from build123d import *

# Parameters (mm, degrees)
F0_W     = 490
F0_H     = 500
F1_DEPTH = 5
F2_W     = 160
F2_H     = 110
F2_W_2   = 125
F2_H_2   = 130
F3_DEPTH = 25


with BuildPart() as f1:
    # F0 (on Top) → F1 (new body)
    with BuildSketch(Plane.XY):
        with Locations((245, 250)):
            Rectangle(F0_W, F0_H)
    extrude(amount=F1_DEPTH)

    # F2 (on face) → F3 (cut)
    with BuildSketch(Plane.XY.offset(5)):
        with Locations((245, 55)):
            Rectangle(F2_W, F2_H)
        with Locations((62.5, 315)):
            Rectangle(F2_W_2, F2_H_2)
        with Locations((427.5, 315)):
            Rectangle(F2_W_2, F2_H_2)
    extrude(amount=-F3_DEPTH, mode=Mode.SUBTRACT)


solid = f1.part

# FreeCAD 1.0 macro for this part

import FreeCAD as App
import Part
import Sketcher
from FreeCAD import Vector
Q = App.Units.Quantity

doc = App.newDocument("Part")
body = doc.addObject("PartDesign::Body", "Body")

# Sketch on XY plane
sketch1 = doc.addObject("Sketcher::SketchObject", "Sketch")
body.addObject(sketch1)
sketch1.AttachmentSupport = (doc.XY_Plane, [""])
sketch1.MapMode = "FlatFace"
sketch1.addGeometry(Part.LineSegment(Vector(0, 500, 0), Vector(0, 0, 0)), False)
sketch1.addGeometry(Part.LineSegment(Vector(0, 0, 0), Vector(490, 0, 0)), False)
sketch1.addGeometry(Part.LineSegment(Vector(490, 0, 0), Vector(490, 500, 0)), False)
sketch1.addGeometry(Part.LineSegment(Vector(490, 500, 0), Vector(0, 500, 0)), False)
sketch1.addConstraint(Sketcher.Constraint("Coincident", 0, 2, 1, 1))
sketch1.addConstraint(Sketcher.Constraint("Coincident", 1, 2, 2, 1))
sketch1.addConstraint(Sketcher.Constraint("Coincident", 2, 2, 3, 1))
sketch1.addConstraint(Sketcher.Constraint("Coincident", 3, 2, 0, 1))
sketch1.addConstraint(Sketcher.Constraint("Vertical", 0))
sketch1.addConstraint(Sketcher.Constraint("Horizontal", 1))
sketch1.addConstraint(Sketcher.Constraint("Vertical", 2))
sketch1.addConstraint(Sketcher.Constraint("Horizontal", 3))
sketch1.addConstraint(Sketcher.Constraint("Coincident", 0, 2, -1, 1))
sketch1.addConstraint(Sketcher.Constraint("DistanceX", 1, 1, 1, 2, Q("490 mm")))
sketch1.addConstraint(Sketcher.Constraint("DistanceY", 0, 2, 0, 1, Q("500 mm")))
pad1 = doc.addObject("PartDesign::Pad", "Pad")
body.addObject(pad1)
pad1.Profile = sketch1
pad1.Length = 5

# Sketch on XY plane
sketch2 = doc.addObject("Sketcher::SketchObject", "Sketch001")
body.addObject(sketch2)
sketch2.AttachmentSupport = (doc.XY_Plane, [""])
sketch2.MapMode = "FlatFace"
sketch2.AttachmentOffset = App.Placement(Vector(0, 0, 5), App.Rotation())
sketch2.addGeometry(Part.LineSegment(Vector(165, 110, 0), Vector(165, 0, 0)), False)
sketch2.addGeometry(Part.LineSegment(Vector(165, 0, 0), Vector(325, 0, 0)), False)
sketch2.addGeometry(Part.LineSegment(Vector(325, 0, 0), Vector(325, 110, 0)), False)
sketch2.addGeometry(Part.LineSegment(Vector(325, 110, 0), Vector(165, 110, 0)), False)
sketch2.addGeometry(Part.LineSegment(Vector(0, 380, 0), Vector(0, 250, 0)), False)
sketch2.addGeometry(Part.LineSegment(Vector(0, 250, 0), Vector(125, 250, 0)), False)
sketch2.addGeometry(Part.LineSegment(Vector(125, 250, 0), Vector(125, 380, 0)), False)
sketch2.addGeometry(Part.LineSegment(Vector(125, 380, 0), Vector(0, 380, 0)), False)
sketch2.addGeometry(Part.LineSegment(Vector(365, 380, 0), Vector(365, 250, 0)), False)
sketch2.addGeometry(Part.LineSegment(Vector(365, 250, 0), Vector(490, 250, 0)), False)
sketch2.addGeometry(Part.LineSegment(Vector(490, 250, 0), Vector(490, 380, 0)), False)
sketch2.addGeometry(Part.LineSegment(Vector(490, 380, 0), Vector(365, 380, 0)), False)
sketch2.addConstraint(Sketcher.Constraint("Coincident", 0, 2, 1, 1))
sketch2.addConstraint(Sketcher.Constraint("Coincident", 1, 2, 2, 1))
sketch2.addConstraint(Sketcher.Constraint("Coincident", 2, 2, 3, 1))
sketch2.addConstraint(Sketcher.Constraint("Coincident", 3, 2, 0, 1))
sketch2.addConstraint(Sketcher.Constraint("Coincident", 4, 2, 5, 1))
sketch2.addConstraint(Sketcher.Constraint("Coincident", 5, 2, 6, 1))
sketch2.addConstraint(Sketcher.Constraint("Coincident", 6, 2, 7, 1))
sketch2.addConstraint(Sketcher.Constraint("Coincident", 7, 2, 4, 1))
sketch2.addConstraint(Sketcher.Constraint("Coincident", 8, 2, 9, 1))
sketch2.addConstraint(Sketcher.Constraint("Coincident", 9, 2, 10, 1))
sketch2.addConstraint(Sketcher.Constraint("Coincident", 10, 2, 11, 1))
sketch2.addConstraint(Sketcher.Constraint("Coincident", 11, 2, 8, 1))
sketch2.addConstraint(Sketcher.Constraint("Vertical", 0))
sketch2.addConstraint(Sketcher.Constraint("Horizontal", 1))
sketch2.addConstraint(Sketcher.Constraint("Vertical", 2))
sketch2.addConstraint(Sketcher.Constraint("Horizontal", 3))
sketch2.addConstraint(Sketcher.Constraint("Vertical", 4))
sketch2.addConstraint(Sketcher.Constraint("Horizontal", 5))
sketch2.addConstraint(Sketcher.Constraint("Vertical", 6))
sketch2.addConstraint(Sketcher.Constraint("Horizontal", 7))
sketch2.addConstraint(Sketcher.Constraint("Vertical", 8))
sketch2.addConstraint(Sketcher.Constraint("Horizontal", 9))
sketch2.addConstraint(Sketcher.Constraint("Vertical", 10))
sketch2.addConstraint(Sketcher.Constraint("Horizontal", 11))
sketch2.addConstraint(Sketcher.Constraint("PointOnObject", 0, 2, -1))
sketch2.addConstraint(Sketcher.Constraint("PointOnObject", 4, 2, -2))
sketch2.addConstraint(Sketcher.Constraint("Horizontal", 5, 2, 8, 2))
sketch2.addConstraint(Sketcher.Constraint("Horizontal", 7, 2, 10, 2))
sketch2.addConstraint(Sketcher.Constraint("Equal", 7, 9))
sketch2.addConstraint(Sketcher.Constraint("DistanceX", 1, 1, 1, 2, Q("160 mm")))
sketch2.addConstraint(Sketcher.Constraint("DistanceX", 5, 1, 5, 2, Q("125 mm")))
sketch2.addConstraint(Sketcher.Constraint("DistanceY", 0, 2, 0, 1, Q("110 mm")))
sketch2.addConstraint(Sketcher.Constraint("DistanceY", 4, 2, 4, 1, Q("130 mm")))
sketch2.addConstraint(Sketcher.Constraint("DistanceX", -1, 1, 0, 2, Q("165 mm")))
sketch2.addConstraint(Sketcher.Constraint("DistanceY", -1, 1, 4, 2, Q("250 mm")))
sketch2.addConstraint(Sketcher.Constraint("DistanceX", -1, 1, 8, 2, Q("365 mm")))
pocket1 = doc.addObject("PartDesign::Pocket", "Pocket")
body.addObject(pocket1)
pocket1.Profile = sketch2
pocket1.Length = 25

doc.recompute()
